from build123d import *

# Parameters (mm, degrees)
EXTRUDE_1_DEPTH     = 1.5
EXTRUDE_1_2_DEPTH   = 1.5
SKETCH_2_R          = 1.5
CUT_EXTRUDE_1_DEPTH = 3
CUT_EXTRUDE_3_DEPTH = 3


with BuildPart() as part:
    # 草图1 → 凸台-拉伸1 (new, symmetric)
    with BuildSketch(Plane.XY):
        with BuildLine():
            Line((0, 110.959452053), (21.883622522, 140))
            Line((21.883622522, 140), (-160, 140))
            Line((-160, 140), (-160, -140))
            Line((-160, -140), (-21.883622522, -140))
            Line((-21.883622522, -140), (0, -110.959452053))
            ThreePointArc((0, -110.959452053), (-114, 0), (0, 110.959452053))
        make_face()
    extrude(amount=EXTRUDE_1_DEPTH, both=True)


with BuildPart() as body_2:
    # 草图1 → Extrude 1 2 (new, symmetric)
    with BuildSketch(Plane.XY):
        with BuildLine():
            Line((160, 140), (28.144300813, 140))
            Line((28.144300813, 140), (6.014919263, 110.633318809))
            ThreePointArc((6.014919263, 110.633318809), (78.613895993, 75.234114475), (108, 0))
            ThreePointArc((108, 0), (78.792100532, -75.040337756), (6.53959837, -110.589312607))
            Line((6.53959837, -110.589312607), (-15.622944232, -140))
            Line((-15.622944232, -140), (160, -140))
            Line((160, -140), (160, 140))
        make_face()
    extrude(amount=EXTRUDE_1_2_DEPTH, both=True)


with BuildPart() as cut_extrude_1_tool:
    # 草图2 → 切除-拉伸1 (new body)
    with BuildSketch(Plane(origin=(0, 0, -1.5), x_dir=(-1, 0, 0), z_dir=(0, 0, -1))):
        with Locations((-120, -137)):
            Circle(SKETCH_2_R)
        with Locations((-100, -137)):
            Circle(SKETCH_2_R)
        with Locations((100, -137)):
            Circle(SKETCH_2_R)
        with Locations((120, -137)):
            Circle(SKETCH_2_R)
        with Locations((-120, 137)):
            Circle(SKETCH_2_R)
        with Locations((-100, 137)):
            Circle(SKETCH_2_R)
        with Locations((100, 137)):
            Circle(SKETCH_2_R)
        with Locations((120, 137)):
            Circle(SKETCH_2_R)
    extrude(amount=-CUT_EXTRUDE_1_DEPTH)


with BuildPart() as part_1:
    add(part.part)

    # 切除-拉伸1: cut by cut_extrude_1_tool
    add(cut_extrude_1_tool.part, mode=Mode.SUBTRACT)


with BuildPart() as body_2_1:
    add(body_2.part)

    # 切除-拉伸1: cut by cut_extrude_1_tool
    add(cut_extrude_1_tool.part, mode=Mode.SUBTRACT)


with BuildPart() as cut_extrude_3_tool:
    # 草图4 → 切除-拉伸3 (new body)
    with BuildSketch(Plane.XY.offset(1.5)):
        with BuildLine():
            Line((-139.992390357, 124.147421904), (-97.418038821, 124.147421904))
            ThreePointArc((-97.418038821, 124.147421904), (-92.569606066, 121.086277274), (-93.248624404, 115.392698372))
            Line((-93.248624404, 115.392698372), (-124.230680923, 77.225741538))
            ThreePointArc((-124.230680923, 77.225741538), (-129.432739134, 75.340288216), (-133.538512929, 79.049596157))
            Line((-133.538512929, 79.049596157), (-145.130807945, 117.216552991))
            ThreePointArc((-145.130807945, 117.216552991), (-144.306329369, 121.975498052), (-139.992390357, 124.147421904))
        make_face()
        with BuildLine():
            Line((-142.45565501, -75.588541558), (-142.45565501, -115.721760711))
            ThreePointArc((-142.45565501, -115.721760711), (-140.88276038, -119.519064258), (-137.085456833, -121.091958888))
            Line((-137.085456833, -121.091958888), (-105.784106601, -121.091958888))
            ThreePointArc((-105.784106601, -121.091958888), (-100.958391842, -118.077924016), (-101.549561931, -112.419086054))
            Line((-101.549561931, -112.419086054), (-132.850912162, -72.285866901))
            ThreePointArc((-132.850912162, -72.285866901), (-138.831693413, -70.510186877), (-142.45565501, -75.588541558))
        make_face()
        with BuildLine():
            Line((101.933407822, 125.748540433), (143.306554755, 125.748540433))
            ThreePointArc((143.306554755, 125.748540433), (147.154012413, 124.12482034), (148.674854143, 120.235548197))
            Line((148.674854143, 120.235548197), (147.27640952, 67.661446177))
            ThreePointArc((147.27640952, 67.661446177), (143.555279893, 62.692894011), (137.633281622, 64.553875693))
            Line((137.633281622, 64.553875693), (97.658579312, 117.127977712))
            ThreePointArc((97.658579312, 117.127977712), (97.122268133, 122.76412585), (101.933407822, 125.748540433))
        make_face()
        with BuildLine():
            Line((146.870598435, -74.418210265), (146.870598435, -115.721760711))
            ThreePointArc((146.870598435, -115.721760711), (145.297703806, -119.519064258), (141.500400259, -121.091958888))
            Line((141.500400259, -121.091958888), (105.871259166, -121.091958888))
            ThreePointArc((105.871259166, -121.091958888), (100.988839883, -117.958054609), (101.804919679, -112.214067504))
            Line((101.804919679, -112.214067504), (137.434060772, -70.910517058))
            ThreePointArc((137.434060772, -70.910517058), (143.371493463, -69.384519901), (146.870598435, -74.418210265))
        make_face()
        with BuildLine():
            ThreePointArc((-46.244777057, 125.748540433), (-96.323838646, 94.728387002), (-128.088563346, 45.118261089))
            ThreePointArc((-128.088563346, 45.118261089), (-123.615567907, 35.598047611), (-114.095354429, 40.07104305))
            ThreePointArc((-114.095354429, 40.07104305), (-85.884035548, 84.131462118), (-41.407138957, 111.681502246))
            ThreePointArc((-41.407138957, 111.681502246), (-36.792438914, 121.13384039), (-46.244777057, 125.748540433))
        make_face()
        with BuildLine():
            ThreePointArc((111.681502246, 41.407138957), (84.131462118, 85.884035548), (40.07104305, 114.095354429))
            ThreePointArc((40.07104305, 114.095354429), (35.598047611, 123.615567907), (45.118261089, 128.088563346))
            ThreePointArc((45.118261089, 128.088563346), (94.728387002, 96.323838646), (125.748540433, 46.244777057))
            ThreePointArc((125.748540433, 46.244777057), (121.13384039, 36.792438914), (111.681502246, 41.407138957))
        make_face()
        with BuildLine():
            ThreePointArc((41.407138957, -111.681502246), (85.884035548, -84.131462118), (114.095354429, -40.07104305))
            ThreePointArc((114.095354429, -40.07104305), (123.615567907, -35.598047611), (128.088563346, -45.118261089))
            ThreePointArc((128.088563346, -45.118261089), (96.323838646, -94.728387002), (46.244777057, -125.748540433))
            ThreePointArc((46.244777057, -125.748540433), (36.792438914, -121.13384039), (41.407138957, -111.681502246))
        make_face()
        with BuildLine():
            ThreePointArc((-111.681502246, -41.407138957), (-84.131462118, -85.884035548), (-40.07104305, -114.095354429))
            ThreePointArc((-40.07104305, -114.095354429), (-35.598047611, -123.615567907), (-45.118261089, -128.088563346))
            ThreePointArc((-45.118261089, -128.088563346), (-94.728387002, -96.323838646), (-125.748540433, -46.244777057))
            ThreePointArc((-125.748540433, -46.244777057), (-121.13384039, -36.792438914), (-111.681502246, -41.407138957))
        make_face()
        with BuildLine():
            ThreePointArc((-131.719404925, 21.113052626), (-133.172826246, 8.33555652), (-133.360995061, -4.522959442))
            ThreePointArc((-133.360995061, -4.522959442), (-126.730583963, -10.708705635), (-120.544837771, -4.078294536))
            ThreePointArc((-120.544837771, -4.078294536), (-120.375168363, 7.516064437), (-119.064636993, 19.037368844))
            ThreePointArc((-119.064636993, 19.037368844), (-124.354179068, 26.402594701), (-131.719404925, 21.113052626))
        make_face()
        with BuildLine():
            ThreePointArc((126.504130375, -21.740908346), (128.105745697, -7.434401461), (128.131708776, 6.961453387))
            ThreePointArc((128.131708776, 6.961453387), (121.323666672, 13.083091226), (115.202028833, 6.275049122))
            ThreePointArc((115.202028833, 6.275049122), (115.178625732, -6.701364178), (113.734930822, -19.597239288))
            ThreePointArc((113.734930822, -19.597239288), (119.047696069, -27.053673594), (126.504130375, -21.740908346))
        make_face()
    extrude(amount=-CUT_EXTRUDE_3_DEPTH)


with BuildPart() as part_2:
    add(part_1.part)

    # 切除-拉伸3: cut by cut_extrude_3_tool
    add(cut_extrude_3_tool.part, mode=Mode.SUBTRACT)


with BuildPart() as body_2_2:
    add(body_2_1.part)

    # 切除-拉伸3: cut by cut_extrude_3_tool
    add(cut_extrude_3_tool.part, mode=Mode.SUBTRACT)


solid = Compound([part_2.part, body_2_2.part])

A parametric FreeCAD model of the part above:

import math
import FreeCAD as App
import Part
import Sketcher

V = App.Vector
Q = App.Units.Quantity

doc = App.newDocument("Part")
body = doc.addObject("PartDesign::Body", "Body")

sketch1 = body.newObject("Sketcher::SketchObject", "Sketch")
sketch1.AttachmentSupport = (doc.getObject("XY_Plane"), [""])
sketch1.MapMode = "FlatFace"
sketch1.addGeometry([
    Part.LineSegment(V(0, 111, 0), V(22, 140, 0)),
    Part.LineSegment(V(22, 140, 0), V(-160, 140, 0)),
    Part.LineSegment(V(-160, 140, 0), V(-160, -140, 0)),
    Part.LineSegment(V(-160, -140, 0), V(-22, -140, 0)),
    Part.LineSegment(V(-22, -140, 0), V(0, -111, 0)),
    Part.ArcOfCircle(Part.Circle(V(-3, 0, 0), V(0, 0, 1), 111), math.radians(88), math.radians(272)),
], False)
sketch1.addConstraint([
    Sketcher.Constraint("Coincident", 0, 2, 1, 1),
    Sketcher.Constraint("Coincident", 1, 2, 2, 1),
    Sketcher.Constraint("Coincident", 2, 2, 3, 1),
    Sketcher.Constraint("Coincident", 3, 2, 4, 1),
    Sketcher.Constraint("Coincident", 4, 2, 5, 2),
    Sketcher.Constraint("Coincident", 5, 1, 0, 1),
    Sketcher.Constraint("Horizontal", 1),
    Sketcher.Constraint("Vertical", 2),
    Sketcher.Constraint("Horizontal", 3),
    Sketcher.Constraint("Symmetric", 0, 2, 3, 2, -1, 1),
    Sketcher.Constraint("Symmetric", 4, 2, 5, 1, -1, 1),
    Sketcher.Constraint("PointOnObject", 5, 3, -1),
    Sketcher.Constraint("Radius", 5, Q("111 mm")),
    Sketcher.Constraint("DistanceY", 2, 2, 2, 1, Q("280 mm")),
    Sketcher.Constraint("Angle", 0, Q("53 deg")),
    Sketcher.Constraint("DistanceX", 5, 3, -1, 1, Q("3 mm")),
    Sketcher.Constraint("DistanceX", 1, 2, -1, 1, Q("160 mm")),
])
pad1 = body.newObject("PartDesign::Pad", "Pad")
pad1.Profile = sketch1
pad1.Length = 3
pad1.Midplane = True
body2 = doc.addObject("PartDesign::Body", "Body001")

sketch2 = body2.newObject("Sketcher::SketchObject", "Sketch001")
sketch2.AttachmentSupport = (doc.getObject("XY_Plane001"), [""])
sketch2.MapMode = "FlatFace"
sketch2.addGeometry([
    Part.LineSegment(V(160, 140, 0), V(28, 140, 0)),
    Part.LineSegment(V(28, 140, 0), V(6, 111, 0)),
    Part.ArcOfCircle(Part.Circle(V(-3, 0, 0), V(0, 0, 1), 111), math.radians(0), math.radians(85)),
    Part.ArcOfCircle(Part.Circle(V(-3, 0, 0), V(0, 0, 1), 111), math.radians(-85), math.radians(0)),
    Part.LineSegment(V(7, -111, 0), V(-16, -140, 0)),
    Part.LineSegment(V(-16, -140, 0), V(160, -140, 0)),
    Part.LineSegment(V(160, -140, 0), V(160, 140, 0)),
], False)
sketch2.addConstraint([
    Sketcher.Constraint("Coincident", 0, 2, 1, 1),
    Sketcher.Constraint("Coincident", 1, 2, 2, 2),
    Sketcher.Constraint("Tangent", 2, 1, 3, 2),
    Sketcher.Constraint("Coincident", 3, 1, 4, 1),
    Sketcher.Constraint("Coincident", 4, 2, 5, 1),
    Sketcher.Constraint("Coincident", 5, 2, 6, 1),
    Sketcher.Constraint("Coincident", 6, 2, 0, 1),
    Sketcher.Constraint("Horizontal", 0),
    Sketcher.Constraint("Horizontal", 5),
    Sketcher.Constraint("Vertical", 6),
    Sketcher.Constraint("Equal", 2, 3),
    Sketcher.Constraint("PointOnObject", 2, 3, -1),
    Sketcher.Constraint("PointOnObject", 2, 1, -1),
    Sketcher.Constraint("Parallel", 1, 4),
    Sketcher.Constraint("Radius", 2, Q("111 mm")),
    Sketcher.Constraint("DistanceY", 6, 1, 6, 2, Q("280 mm")),
    Sketcher.Constraint("Angle", 1, Q("-127 deg")),
    Sketcher.Constraint("DistanceX", 2, 3, -1, 1, Q("3 mm")),
    Sketcher.Constraint("DistanceY", -1, 1, 0, 2, Q("140 mm")),
    Sketcher.Constraint("DistanceX", -1, 1, 5, 2, Q("160 mm")),
    Sketcher.Constraint("DistanceX", 0, 2, 0, 1, Q("131.855699 mm")),
    Sketcher.Constraint("DistanceX", -1, 1, 3, 1, Q("6.539598 mm")),
])
pad2 = body2.newObject("PartDesign::Pad", "Pad001")
pad2.Profile = sketch2
pad2.Length = 3
pad2.Midplane = True
body3 = doc.addObject("PartDesign::Body", "Body002")
body3.AllowCompound = True

sketch3 = body3.newObject("Sketcher::SketchObject", "Sketch002")
sketch3.AttachmentSupport = (doc.getObject("XY_Plane002"), [""])
sketch3.MapMode = "FlatFace"
sketch3.AttachmentOffset = App.Placement(V(0, 0, -1.5), App.Rotation())
sketch3.addGeometry([
    Part.Circle(V(120, -137, 0), V(0, 0, 1), 1.5),
    Part.Circle(V(100, -137, 0), V(0, 0, 1), 1.5),
    Part.Circle(V(-100, -137, 0), V(0, 0, 1), 1.5),
    Part.Circle(V(-120, -137, 0), V(0, 0, 1), 1.5),
    Part.Circle(V(120, 137, 0), V(0, 0, 1), 1.5),
    Part.Circle(V(100, 137, 0), V(0, 0, 1), 1.5),
    Part.Circle(V(-100, 137, 0), V(0, 0, 1), 1.5),
    Part.Circle(V(-120, 137, 0), V(0, 0, 1), 1.5),
], False)
sketch3.addConstraint([
    Sketcher.Constraint("Equal", 0, 1),
    Sketcher.Constraint("Equal", 1, 2),
    Sketcher.Constraint("Equal", 2, 3),
    Sketcher.Constraint("Equal", 3, 4),
    Sketcher.Constraint("Equal", 4, 5),
    Sketcher.Constraint("Equal", 5, 6),
    Sketcher.Constraint("Equal", 6, 7),
    Sketcher.Constraint("Symmetric", 3, 3, 4, 3, -1, 1),
    Sketcher.Constraint("Symmetric", 2, 3, 5, 3, -1, 1),
    Sketcher.Constraint("Symmetric", 1, 3, 6, 3, -1, 1),
    Sketcher.Constraint("Symmetric", 0, 3, 7, 3, -1, 1),
    Sketcher.Constraint("Symmetric", 1, 3, 2, 3, -2),
    Sketcher.Constraint("Symmetric", 0, 3, 3, 3, -2),
    Sketcher.Constraint("Horizontal", 0, 3, 1, 3),
    Sketcher.Constraint("Diameter", 0, Q("3 mm")),
    Sketcher.Constraint("DistanceX", -1, 1, 0, 3, Q("120 mm")),
    Sketcher.Constraint("DistanceY", 0, 3, -1, 1, Q("137 mm")),
    Sketcher.Constraint("DistanceX", -1, 1, 1, 3, Q("100 mm")),
])
pad3 = body3.newObject("PartDesign::Pad", "Pad002")
pad3.Profile = sketch3
pad3.Length = 3
doc.recompute()

body4 = doc.addObject("PartDesign::Body", "Body003")
body4.BaseFeature = body3
boolean = body.newObject("PartDesign::Boolean", "Boolean")
boolean.Type = "Cut"
boolean.addObjects([body4])
doc.recompute()

boolean2 = body2.newObject("PartDesign::Boolean", "Boolean001")
boolean2.Type = "Cut"
boolean2.addObjects([body3])
body5 = doc.addObject("PartDesign::Body", "Body004")
body5.AllowCompound = True

sketch4 = body5.newObject("Sketcher::SketchObject", "Sketch003")
sketch4.AttachmentSupport = (doc.getObject("XY_Plane004"), [""])
sketch4.MapMode = "FlatFace"
sketch4.AttachmentOffset = App.Placement(V(0, 0, 1.5), App.Rotation())
sketch4.addGeometry([
    Part.LineSegment(V(-97, 124, 0), V(-140, 124, 0)),
    Part.ArcOfCircle(Part.Circle(V(-140, 119, 0), V(0, 0, 1), 5), math.radians(90), math.radians(197)),
    Part.LineSegment(V(-145, 117, 0), V(-134, 79, 0)),
    Part.ArcOfCircle(Part.Circle(V(-128, 81, 0), V(0, 0, 1), 5), math.radians(-163), math.radians(-39)),
    Part.LineSegment(V(-124, 77, 0), V(-93, 115, 0)),
    Part.ArcOfCircle(Part.Circle(V(-97, 119, 0), V(0, 0, 1), 5), math.radians(-39), math.radians(90)),
    Part.LineSegment(V(-142, -76, 0), V(-142, -116, 0)),
    Part.ArcOfCircle(Part.Circle(V(-137, -116, 0), V(0, 0, 1), 5), math.radians(-180), math.radians(-90)),
    Part.LineSegment(V(-137, -121, 0), V(-106, -121, 0)),
    Part.ArcOfCircle(Part.Circle(V(-106, -116, 0), V(0, 0, 1), 5), math.radians(-90), math.radians(38)),
    Part.LineSegment(V(-102, -112, 0), V(-133, -72, 0)),
    Part.ArcOfCircle(Part.Circle(V(-137, -76, 0), V(0, 0, 1), 5), math.radians(38), math.radians(180)),
    Part.LineSegment(V(143, 126, 0), V(102, 126, 0)),
    Part.ArcOfCircle(Part.Circle(V(102, 120, 0), V(0, 0, 1), 5), math.radians(90), math.radians(217)),
    Part.LineSegment(V(98, 117, 0), V(138, 65, 0)),
    Part.ArcOfCircle(Part.Circle(V(142, 68, 0), V(0, 0, 1), 5), math.radians(-143), math.radians(-2)),
    Part.LineSegment(V(147, 68, 0), V(149, 120, 0)),
    Part.ArcOfCircle(Part.Circle(V(143, 120, 0), V(0, 0, 1), 5), math.radians(-2), math.radians(90)),
    Part.LineSegment(V(147, -116, 0), V(147, -74, 0)),
    Part.ArcOfCircle(Part.Circle(V(142, -74, 0), V(0, 0, 1), 5), math.radians(0), math.radians(139)),
    Part.LineSegment(V(137, -71, 0), V(102, -112, 0)),
    Part.ArcOfCircle(Part.Circle(V(106, -116, 0), V(0, 0, 1), 5), math.radians(139), math.radians(270)),
    Part.LineSegment(V(106, -121, 0), V(142, -121, 0)),
    Part.ArcOfCircle(Part.Circle(V(142, -116, 0), V(0, 0, 1), 5), math.radians(-90), math.radians(0)),
    Part.ArcOfCircle(Part.Circle(V(-3, 0, 0), V(0, 0, 1), 133), math.radians(109), math.radians(160)),
    Part.ArcOfCircle(Part.Circle(V(-121, 43, 0), V(0, 0, 1), 7), math.radians(160), math.radians(340)),
    Part.ArcOfCircle(Part.Circle(V(-3, 0, 0), V(0, 0, 1), 118), math.radians(109), math.radians(160)),
    Part.ArcOfCircle(Part.Circle(V(-44, 119, 0), V(0, 0, 1), 7), math.radians(-71), math.radians(109)),
    Part.ArcOfCircle(Part.Circle(V(0, 3, 0), V(0, 0, 1), 118), math.radians(19), math.radians(70)),
    Part.ArcOfCircle(Part.Circle(V(119, 44, 0), V(0, 0, 1), 7), math.radians(-161), math.radians(19)),
    Part.ArcOfCircle(Part.Circle(V(0, 3, 0), V(0, 0, 1), 133), math.radians(19), math.radians(70)),
    Part.ArcOfCircle(Part.Circle(V(43, 121, 0), V(0, 0, 1), 7), math.radians(70), math.radians(250)),
    Part.ArcOfCircle(Part.Circle(V(3, 0, 0), V(0, 0, 1), 118), math.radians(-71), math.radians(-20)),
    Part.ArcOfCircle(Part.Circle(V(44, -119, 0), V(0, 0, 1), 7), math.radians(109), math.radians(289)),
    Part.ArcOfCircle(Part.Circle(V(3, 0, 0), V(0, 0, 1), 133), math.radians(-71), math.radians(-20)),
    Part.ArcOfCircle(Part.Circle(V(121, -43, 0), V(0, 0, 1), 7), math.radians(-20), math.radians(160)),
    Part.ArcOfCircle(Part.Circle(V(0, -3, 0), V(0, 0, 1), 118), math.radians(-161), math.radians(-110)),
    Part.ArcOfCircle(Part.Circle(V(-119, -44, 0), V(0, 0, 1), 7), math.radians(19), math.radians(199)),
    Part.ArcOfCircle(Part.Circle(V(0, -3, 0), V(0, 0, 1), 133), math.radians(-161), math.radians(-110)),
    Part.ArcOfCircle(Part.Circle(V(-43, -121, 0), V(0, 0, 1), 7), math.radians(-110), math.radians(70)),
    Part.ArcOfCircle(Part.Circle(V(-3, 0, 0), V(0, 0, 1), 130), math.radians(170.69), math.radians(181.99)),
    Part.ArcOfCircle(Part.Circle(V(-127, -4, 0), V(0, 0, 1), 6), math.radians(-178), math.radians(2)),
    Part.ArcOfCircle(Part.Circle(V(-3, 0, 0), V(0, 0, 1), 118), math.radians(170.69), math.radians(181.99)),
    Part.ArcOfCircle(Part.Circle(V(-125, 20, 0), V(0, 0, 1), 6), math.radians(-9), math.radians(171)),
    Part.ArcOfCircle(Part.Circle(V(-3, 0, 0), V(0, 0, 1), 131), math.radians(-9.53), math.radians(3.04)),
    Part.ArcOfCircle(Part.Circle(V(122, 7, 0), V(0, 0, 1), 6), math.radians(3), math.radians(183)),
    Part.ArcOfCircle(Part.Circle(V(-3, 0, 0), V(0, 0, 1), 118), math.radians(-9.53), math.radians(3.04)),
    Part.ArcOfCircle(Part.Circle(V(120, -21, 0), V(0, 0, 1), 6), math.radians(170), math.radians(350)),
], False)
sketch4.addConstraint([
    Sketcher.Constraint("Tangent", 0, 2, 1, 1),
    Sketcher.Constraint("Tangent", 1, 2, 2, 1),
    Sketcher.Constraint("Tangent", 2, 2, 3, 1),
    Sketcher.Constraint("Tangent", 3, 2, 4, 1),
    Sketcher.Constraint("Tangent", 4, 2, 5, 1),
    Sketcher.Constraint("Tangent", 5, 2, 0, 1),
    Sketcher.Constraint("Tangent", 6, 2, 7, 1),
    Sketcher.Constraint("Tangent", 7, 2, 8, 1),
    Sketcher.Constraint("Tangent", 8, 2, 9, 1),
    Sketcher.Constraint("Tangent", 9, 2, 10, 1),
    Sketcher.Constraint("Tangent", 10, 2, 11, 1),
    Sketcher.Constraint("Tangent", 11, 2, 6, 1),
    Sketcher.Constraint("Tangent", 12, 2, 13, 1),
    Sketcher.Constraint("Tangent", 13, 2, 14, 1),
    Sketcher.Constraint("Tangent", 14, 2, 15, 1),
    Sketcher.Constraint("Tangent", 15, 2, 16, 1),
    Sketcher.Constraint("Tangent", 16, 2, 17, 1),
    Sketcher.Constraint("Tangent", 17, 2, 12, 1),
    Sketcher.Constraint("Tangent", 18, 2, 19, 1),
    Sketcher.Constraint("Tangent", 19, 2, 20, 1),
    Sketcher.Constraint("Tangent", 20, 2, 21, 1),
    Sketcher.Constraint("Tangent", 21, 2, 22, 1),
    Sketcher.Constraint("Tangent", 22, 2, 23, 1),
    Sketcher.Constraint("Tangent", 23, 2, 18, 1),
    Sketcher.Constraint("Tangent", 24, 2, 25, 1),
    Sketcher.Constraint("Tangent", 25, 2, 26, 2),
    Sketcher.Constraint("Tangent", 26, 1, 27, 1),
    Sketcher.Constraint("Tangent", 27, 2, 24, 1),
    Sketcher.Constraint("Tangent", 28, 1, 29, 1),
    Sketcher.Constraint("Tangent", 29, 2, 30, 1),
    Sketcher.Constraint("Tangent", 30, 2, 31, 1),
    Sketcher.Constraint("Tangent", 31, 2, 28, 2),
    Sketcher.Constraint("Tangent", 32, 1, 33, 1),
    Sketcher.Constraint("Tangent", 33, 2, 34, 1),
    Sketcher.Constraint("Tangent", 34, 2, 35, 1),
    Sketcher.Constraint("Tangent", 35, 2, 32, 2),
    Sketcher.Constraint("Tangent", 36, 1, 37, 1),
    Sketcher.Constraint("Tangent", 37, 2, 38, 1),
    Sketcher.Constraint("Tangent", 38, 2, 39, 1),
    Sketcher.Constraint("Tangent", 39, 2, 36, 2),
    Sketcher.Constraint("Tangent", 40, 2, 41, 1),
    Sketcher.Constraint("Tangent", 41, 2, 42, 2),
    Sketcher.Constraint("Tangent", 42, 1, 43, 1),
    Sketcher.Constraint("Tangent", 43, 2, 40, 1),
    Sketcher.Constraint("Tangent", 44, 2, 45, 1),
    Sketcher.Constraint("Tangent", 45, 2, 46, 2),
    Sketcher.Constraint("Tangent", 46, 1, 47, 1),
    Sketcher.Constraint("Tangent", 47, 2, 44, 1),
    Sketcher.Constraint("Horizontal", 0),
    Sketcher.Constraint("Vertical", 6),
    Sketcher.Constraint("Horizontal", 8),
    Sketcher.Constraint("Horizontal", 12),
    Sketcher.Constraint("Vertical", 18),
    Sketcher.Constraint("Horizontal", 22),
    Sketcher.Constraint("Coincident", 26, 3, 24, 3),
    Sketcher.Constraint("Coincident", 30, 3, 28, 3),
    Sketcher.Constraint("Coincident", 34, 3, 32, 3),
    Sketcher.Constraint("Coincident", 38, 3, 36, 3),
    Sketcher.Constraint("Coincident", 40, 3, 24, 3),
    Sketcher.Constraint("Coincident", 42, 3, 24, 3),
    Sketcher.Constraint("Coincident", 44, 3, 24, 3),
    Sketcher.Constraint("Coincident", 46, 3, 24, 3),
    Sketcher.Constraint("Equal", 1, 3),
    Sketcher.Constraint("Equal", 3, 5),
    Sketcher.Constraint("Equal", 5, 7),
    Sketcher.Constraint("Equal", 7, 9),
    Sketcher.Constraint("Equal", 9, 11),
    Sketcher.Constraint("Equal", 11, 13),
    Sketcher.Constraint("Equal", 13, 15),
    Sketcher.Constraint("Equal", 15, 17),
    Sketcher.Constraint("Equal", 17, 19),
    Sketcher.Constraint("Equal", 19, 21),
    Sketcher.Constraint("Equal", 21, 23),
    Sketcher.Constraint("Equal", 26, 28),
    Sketcher.Constraint("Equal", 27, 29),
    Sketcher.Constraint("Equal", 28, 32),
    Sketcher.Constraint("Equal", 31, 33),
    Sketcher.Constraint("Equal", 32, 36),
    Sketcher.Constraint("Equal", 35, 37),
    Sketcher.Constraint("Symmetric", 24, 3, 32, 3, -1, 1),
    Sketcher.Constraint("Symmetric", 28, 3, 36, 3, -1, 1),
    Sketcher.Constraint("PointOnObject", 24, 3, -1),
    Sketcher.Constraint("PointOnObject", 28, 3, -2),
    Sketcher.Constraint("Horizontal", 9, 3, 21, 3),
    Sketcher.Constraint("Horizontal", 39, 3, 7, 2),
    Sketcher.Constraint("Horizontal", 17, 2, 27, 2),
    Sketcher.Constraint("DistanceX", 24, 3, -1, 1, Q("3 mm")),
    Sketcher.Constraint("DistanceY", -1, 1, 28, 3, Q("3 mm")),
    Sketcher.Constraint("Radius", 1, Q("5.370198 mm")),
    Sketcher.Constraint("Radius", 44, Q("131.316362 mm")),
    Sketcher.Constraint("Radius", 24, Q("132.976713 mm")),
    Sketcher.Constraint("Radius", 25, Q("7.437814 mm")),
    Sketcher.Constraint("Radius", 40, Q("130.439435 mm")),
    Sketcher.Constraint("Radius", 41, Q("6.411934 mm")),
    Sketcher.Constraint("Radius", 45, Q("6.473943 mm")),
    Sketcher.Constraint("Distance", 20, Q("54.547401 mm")),
    Sketcher.Constraint("DistanceX", 0, 2, 0, 1, Q("42.574352 mm")),
    Sketcher.Constraint("DistanceX", 8, 1, 8, 2, Q("31.30135 mm")),
    Sketcher.Constraint("DistanceX", 22, 1, 22, 2, Q("35.629141 mm")),
    Sketcher.Constraint("DistanceY", 6, 2, 6, 1, Q("40.133219 mm")),
    Sketcher.Constraint("DistanceX", -1, 1, 19, 3, Q("141.5004 mm")),
    Sketcher.Constraint("DistanceY", -1, 1, 4, 2, Q("115.392698 mm")),
    Sketcher.Constraint("Distance", 2, Q("39.888569 mm")),
    Sketcher.Constraint("Distance", 4, Q("49.158971 mm")),
    Sketcher.Constraint("DistanceX", 12, 2, 12, 1, Q("41.373147 mm")),
    Sketcher.Constraint("DistanceX", 1, 3, -1, 1, Q("139.99239 mm")),
    Sketcher.Constraint("DistanceY", 7, 3, -1, 1, Q("115.721761 mm")),
    Sketcher.Constraint("DistanceX", -1, 1, 15, 3, Q("141.90811 mm")),
    Sketcher.Constraint("DistanceY", -1, 1, 15, 3, Q("67.80424 mm")),
    Sketcher.Constraint("DistanceX", 25, 3, -1, 1, Q("121.091959 mm")),
    Sketcher.Constraint("DistanceX", 27, 3, -1, 1, Q("43.825958 mm")),
    Sketcher.Constraint("DistanceX", -1, 1, 29, 3, Q("118.715021 mm")),
    Sketcher.Constraint("DistanceY", -1, 1, 31, 3, Q("121.091959 mm")),
    Sketcher.Constraint("DistanceX", -1, 1, 33, 3, Q("43.825958 mm")),
    Sketcher.Constraint("DistanceX", -1, 1, 35, 3, Q("121.091959 mm")),
    Sketcher.Constraint("DistanceX", 37, 3, -1, 1, Q("118.715021 mm")),
    Sketcher.Constraint("DistanceX", 43, 3, -1, 1, Q("125.392021 mm")),
    Sketcher.Constraint("DistanceX", -1, 1, 45, 3, Q("121.666869 mm")),
    Sketcher.Constraint("DistanceX", -1, 1, 47, 3, Q("120.119531 mm")),
    Sketcher.Constraint("DistanceX", 9, 2, -1, 1, Q("101.549562 mm")),
    Sketcher.Constraint("DistanceX", -1, 1, 13, 2, Q("97.658579 mm")),
    Sketcher.Constraint("DistanceY", 40, 2, -1, 1, Q("4.522959 mm")),
])
pad4 = body5.newObject("PartDesign::Pad", "Pad003")
pad4.Profile = sketch4
pad4.Length = 3
pad4.Reversed = True
doc.recompute()

body6 = doc.addObject("PartDesign::Body", "Body005")
body6.BaseFeature = body5
boolean3 = body.newObject("PartDesign::Boolean", "Boolean002")
boolean3.Type = "Cut"
boolean3.addObjects([body6])
doc.recompute()

boolean4 = body2.newObject("PartDesign::Boolean", "Boolean003")
boolean4.Type = "Cut"
boolean4.addObjects([body5])

doc.recompute()
